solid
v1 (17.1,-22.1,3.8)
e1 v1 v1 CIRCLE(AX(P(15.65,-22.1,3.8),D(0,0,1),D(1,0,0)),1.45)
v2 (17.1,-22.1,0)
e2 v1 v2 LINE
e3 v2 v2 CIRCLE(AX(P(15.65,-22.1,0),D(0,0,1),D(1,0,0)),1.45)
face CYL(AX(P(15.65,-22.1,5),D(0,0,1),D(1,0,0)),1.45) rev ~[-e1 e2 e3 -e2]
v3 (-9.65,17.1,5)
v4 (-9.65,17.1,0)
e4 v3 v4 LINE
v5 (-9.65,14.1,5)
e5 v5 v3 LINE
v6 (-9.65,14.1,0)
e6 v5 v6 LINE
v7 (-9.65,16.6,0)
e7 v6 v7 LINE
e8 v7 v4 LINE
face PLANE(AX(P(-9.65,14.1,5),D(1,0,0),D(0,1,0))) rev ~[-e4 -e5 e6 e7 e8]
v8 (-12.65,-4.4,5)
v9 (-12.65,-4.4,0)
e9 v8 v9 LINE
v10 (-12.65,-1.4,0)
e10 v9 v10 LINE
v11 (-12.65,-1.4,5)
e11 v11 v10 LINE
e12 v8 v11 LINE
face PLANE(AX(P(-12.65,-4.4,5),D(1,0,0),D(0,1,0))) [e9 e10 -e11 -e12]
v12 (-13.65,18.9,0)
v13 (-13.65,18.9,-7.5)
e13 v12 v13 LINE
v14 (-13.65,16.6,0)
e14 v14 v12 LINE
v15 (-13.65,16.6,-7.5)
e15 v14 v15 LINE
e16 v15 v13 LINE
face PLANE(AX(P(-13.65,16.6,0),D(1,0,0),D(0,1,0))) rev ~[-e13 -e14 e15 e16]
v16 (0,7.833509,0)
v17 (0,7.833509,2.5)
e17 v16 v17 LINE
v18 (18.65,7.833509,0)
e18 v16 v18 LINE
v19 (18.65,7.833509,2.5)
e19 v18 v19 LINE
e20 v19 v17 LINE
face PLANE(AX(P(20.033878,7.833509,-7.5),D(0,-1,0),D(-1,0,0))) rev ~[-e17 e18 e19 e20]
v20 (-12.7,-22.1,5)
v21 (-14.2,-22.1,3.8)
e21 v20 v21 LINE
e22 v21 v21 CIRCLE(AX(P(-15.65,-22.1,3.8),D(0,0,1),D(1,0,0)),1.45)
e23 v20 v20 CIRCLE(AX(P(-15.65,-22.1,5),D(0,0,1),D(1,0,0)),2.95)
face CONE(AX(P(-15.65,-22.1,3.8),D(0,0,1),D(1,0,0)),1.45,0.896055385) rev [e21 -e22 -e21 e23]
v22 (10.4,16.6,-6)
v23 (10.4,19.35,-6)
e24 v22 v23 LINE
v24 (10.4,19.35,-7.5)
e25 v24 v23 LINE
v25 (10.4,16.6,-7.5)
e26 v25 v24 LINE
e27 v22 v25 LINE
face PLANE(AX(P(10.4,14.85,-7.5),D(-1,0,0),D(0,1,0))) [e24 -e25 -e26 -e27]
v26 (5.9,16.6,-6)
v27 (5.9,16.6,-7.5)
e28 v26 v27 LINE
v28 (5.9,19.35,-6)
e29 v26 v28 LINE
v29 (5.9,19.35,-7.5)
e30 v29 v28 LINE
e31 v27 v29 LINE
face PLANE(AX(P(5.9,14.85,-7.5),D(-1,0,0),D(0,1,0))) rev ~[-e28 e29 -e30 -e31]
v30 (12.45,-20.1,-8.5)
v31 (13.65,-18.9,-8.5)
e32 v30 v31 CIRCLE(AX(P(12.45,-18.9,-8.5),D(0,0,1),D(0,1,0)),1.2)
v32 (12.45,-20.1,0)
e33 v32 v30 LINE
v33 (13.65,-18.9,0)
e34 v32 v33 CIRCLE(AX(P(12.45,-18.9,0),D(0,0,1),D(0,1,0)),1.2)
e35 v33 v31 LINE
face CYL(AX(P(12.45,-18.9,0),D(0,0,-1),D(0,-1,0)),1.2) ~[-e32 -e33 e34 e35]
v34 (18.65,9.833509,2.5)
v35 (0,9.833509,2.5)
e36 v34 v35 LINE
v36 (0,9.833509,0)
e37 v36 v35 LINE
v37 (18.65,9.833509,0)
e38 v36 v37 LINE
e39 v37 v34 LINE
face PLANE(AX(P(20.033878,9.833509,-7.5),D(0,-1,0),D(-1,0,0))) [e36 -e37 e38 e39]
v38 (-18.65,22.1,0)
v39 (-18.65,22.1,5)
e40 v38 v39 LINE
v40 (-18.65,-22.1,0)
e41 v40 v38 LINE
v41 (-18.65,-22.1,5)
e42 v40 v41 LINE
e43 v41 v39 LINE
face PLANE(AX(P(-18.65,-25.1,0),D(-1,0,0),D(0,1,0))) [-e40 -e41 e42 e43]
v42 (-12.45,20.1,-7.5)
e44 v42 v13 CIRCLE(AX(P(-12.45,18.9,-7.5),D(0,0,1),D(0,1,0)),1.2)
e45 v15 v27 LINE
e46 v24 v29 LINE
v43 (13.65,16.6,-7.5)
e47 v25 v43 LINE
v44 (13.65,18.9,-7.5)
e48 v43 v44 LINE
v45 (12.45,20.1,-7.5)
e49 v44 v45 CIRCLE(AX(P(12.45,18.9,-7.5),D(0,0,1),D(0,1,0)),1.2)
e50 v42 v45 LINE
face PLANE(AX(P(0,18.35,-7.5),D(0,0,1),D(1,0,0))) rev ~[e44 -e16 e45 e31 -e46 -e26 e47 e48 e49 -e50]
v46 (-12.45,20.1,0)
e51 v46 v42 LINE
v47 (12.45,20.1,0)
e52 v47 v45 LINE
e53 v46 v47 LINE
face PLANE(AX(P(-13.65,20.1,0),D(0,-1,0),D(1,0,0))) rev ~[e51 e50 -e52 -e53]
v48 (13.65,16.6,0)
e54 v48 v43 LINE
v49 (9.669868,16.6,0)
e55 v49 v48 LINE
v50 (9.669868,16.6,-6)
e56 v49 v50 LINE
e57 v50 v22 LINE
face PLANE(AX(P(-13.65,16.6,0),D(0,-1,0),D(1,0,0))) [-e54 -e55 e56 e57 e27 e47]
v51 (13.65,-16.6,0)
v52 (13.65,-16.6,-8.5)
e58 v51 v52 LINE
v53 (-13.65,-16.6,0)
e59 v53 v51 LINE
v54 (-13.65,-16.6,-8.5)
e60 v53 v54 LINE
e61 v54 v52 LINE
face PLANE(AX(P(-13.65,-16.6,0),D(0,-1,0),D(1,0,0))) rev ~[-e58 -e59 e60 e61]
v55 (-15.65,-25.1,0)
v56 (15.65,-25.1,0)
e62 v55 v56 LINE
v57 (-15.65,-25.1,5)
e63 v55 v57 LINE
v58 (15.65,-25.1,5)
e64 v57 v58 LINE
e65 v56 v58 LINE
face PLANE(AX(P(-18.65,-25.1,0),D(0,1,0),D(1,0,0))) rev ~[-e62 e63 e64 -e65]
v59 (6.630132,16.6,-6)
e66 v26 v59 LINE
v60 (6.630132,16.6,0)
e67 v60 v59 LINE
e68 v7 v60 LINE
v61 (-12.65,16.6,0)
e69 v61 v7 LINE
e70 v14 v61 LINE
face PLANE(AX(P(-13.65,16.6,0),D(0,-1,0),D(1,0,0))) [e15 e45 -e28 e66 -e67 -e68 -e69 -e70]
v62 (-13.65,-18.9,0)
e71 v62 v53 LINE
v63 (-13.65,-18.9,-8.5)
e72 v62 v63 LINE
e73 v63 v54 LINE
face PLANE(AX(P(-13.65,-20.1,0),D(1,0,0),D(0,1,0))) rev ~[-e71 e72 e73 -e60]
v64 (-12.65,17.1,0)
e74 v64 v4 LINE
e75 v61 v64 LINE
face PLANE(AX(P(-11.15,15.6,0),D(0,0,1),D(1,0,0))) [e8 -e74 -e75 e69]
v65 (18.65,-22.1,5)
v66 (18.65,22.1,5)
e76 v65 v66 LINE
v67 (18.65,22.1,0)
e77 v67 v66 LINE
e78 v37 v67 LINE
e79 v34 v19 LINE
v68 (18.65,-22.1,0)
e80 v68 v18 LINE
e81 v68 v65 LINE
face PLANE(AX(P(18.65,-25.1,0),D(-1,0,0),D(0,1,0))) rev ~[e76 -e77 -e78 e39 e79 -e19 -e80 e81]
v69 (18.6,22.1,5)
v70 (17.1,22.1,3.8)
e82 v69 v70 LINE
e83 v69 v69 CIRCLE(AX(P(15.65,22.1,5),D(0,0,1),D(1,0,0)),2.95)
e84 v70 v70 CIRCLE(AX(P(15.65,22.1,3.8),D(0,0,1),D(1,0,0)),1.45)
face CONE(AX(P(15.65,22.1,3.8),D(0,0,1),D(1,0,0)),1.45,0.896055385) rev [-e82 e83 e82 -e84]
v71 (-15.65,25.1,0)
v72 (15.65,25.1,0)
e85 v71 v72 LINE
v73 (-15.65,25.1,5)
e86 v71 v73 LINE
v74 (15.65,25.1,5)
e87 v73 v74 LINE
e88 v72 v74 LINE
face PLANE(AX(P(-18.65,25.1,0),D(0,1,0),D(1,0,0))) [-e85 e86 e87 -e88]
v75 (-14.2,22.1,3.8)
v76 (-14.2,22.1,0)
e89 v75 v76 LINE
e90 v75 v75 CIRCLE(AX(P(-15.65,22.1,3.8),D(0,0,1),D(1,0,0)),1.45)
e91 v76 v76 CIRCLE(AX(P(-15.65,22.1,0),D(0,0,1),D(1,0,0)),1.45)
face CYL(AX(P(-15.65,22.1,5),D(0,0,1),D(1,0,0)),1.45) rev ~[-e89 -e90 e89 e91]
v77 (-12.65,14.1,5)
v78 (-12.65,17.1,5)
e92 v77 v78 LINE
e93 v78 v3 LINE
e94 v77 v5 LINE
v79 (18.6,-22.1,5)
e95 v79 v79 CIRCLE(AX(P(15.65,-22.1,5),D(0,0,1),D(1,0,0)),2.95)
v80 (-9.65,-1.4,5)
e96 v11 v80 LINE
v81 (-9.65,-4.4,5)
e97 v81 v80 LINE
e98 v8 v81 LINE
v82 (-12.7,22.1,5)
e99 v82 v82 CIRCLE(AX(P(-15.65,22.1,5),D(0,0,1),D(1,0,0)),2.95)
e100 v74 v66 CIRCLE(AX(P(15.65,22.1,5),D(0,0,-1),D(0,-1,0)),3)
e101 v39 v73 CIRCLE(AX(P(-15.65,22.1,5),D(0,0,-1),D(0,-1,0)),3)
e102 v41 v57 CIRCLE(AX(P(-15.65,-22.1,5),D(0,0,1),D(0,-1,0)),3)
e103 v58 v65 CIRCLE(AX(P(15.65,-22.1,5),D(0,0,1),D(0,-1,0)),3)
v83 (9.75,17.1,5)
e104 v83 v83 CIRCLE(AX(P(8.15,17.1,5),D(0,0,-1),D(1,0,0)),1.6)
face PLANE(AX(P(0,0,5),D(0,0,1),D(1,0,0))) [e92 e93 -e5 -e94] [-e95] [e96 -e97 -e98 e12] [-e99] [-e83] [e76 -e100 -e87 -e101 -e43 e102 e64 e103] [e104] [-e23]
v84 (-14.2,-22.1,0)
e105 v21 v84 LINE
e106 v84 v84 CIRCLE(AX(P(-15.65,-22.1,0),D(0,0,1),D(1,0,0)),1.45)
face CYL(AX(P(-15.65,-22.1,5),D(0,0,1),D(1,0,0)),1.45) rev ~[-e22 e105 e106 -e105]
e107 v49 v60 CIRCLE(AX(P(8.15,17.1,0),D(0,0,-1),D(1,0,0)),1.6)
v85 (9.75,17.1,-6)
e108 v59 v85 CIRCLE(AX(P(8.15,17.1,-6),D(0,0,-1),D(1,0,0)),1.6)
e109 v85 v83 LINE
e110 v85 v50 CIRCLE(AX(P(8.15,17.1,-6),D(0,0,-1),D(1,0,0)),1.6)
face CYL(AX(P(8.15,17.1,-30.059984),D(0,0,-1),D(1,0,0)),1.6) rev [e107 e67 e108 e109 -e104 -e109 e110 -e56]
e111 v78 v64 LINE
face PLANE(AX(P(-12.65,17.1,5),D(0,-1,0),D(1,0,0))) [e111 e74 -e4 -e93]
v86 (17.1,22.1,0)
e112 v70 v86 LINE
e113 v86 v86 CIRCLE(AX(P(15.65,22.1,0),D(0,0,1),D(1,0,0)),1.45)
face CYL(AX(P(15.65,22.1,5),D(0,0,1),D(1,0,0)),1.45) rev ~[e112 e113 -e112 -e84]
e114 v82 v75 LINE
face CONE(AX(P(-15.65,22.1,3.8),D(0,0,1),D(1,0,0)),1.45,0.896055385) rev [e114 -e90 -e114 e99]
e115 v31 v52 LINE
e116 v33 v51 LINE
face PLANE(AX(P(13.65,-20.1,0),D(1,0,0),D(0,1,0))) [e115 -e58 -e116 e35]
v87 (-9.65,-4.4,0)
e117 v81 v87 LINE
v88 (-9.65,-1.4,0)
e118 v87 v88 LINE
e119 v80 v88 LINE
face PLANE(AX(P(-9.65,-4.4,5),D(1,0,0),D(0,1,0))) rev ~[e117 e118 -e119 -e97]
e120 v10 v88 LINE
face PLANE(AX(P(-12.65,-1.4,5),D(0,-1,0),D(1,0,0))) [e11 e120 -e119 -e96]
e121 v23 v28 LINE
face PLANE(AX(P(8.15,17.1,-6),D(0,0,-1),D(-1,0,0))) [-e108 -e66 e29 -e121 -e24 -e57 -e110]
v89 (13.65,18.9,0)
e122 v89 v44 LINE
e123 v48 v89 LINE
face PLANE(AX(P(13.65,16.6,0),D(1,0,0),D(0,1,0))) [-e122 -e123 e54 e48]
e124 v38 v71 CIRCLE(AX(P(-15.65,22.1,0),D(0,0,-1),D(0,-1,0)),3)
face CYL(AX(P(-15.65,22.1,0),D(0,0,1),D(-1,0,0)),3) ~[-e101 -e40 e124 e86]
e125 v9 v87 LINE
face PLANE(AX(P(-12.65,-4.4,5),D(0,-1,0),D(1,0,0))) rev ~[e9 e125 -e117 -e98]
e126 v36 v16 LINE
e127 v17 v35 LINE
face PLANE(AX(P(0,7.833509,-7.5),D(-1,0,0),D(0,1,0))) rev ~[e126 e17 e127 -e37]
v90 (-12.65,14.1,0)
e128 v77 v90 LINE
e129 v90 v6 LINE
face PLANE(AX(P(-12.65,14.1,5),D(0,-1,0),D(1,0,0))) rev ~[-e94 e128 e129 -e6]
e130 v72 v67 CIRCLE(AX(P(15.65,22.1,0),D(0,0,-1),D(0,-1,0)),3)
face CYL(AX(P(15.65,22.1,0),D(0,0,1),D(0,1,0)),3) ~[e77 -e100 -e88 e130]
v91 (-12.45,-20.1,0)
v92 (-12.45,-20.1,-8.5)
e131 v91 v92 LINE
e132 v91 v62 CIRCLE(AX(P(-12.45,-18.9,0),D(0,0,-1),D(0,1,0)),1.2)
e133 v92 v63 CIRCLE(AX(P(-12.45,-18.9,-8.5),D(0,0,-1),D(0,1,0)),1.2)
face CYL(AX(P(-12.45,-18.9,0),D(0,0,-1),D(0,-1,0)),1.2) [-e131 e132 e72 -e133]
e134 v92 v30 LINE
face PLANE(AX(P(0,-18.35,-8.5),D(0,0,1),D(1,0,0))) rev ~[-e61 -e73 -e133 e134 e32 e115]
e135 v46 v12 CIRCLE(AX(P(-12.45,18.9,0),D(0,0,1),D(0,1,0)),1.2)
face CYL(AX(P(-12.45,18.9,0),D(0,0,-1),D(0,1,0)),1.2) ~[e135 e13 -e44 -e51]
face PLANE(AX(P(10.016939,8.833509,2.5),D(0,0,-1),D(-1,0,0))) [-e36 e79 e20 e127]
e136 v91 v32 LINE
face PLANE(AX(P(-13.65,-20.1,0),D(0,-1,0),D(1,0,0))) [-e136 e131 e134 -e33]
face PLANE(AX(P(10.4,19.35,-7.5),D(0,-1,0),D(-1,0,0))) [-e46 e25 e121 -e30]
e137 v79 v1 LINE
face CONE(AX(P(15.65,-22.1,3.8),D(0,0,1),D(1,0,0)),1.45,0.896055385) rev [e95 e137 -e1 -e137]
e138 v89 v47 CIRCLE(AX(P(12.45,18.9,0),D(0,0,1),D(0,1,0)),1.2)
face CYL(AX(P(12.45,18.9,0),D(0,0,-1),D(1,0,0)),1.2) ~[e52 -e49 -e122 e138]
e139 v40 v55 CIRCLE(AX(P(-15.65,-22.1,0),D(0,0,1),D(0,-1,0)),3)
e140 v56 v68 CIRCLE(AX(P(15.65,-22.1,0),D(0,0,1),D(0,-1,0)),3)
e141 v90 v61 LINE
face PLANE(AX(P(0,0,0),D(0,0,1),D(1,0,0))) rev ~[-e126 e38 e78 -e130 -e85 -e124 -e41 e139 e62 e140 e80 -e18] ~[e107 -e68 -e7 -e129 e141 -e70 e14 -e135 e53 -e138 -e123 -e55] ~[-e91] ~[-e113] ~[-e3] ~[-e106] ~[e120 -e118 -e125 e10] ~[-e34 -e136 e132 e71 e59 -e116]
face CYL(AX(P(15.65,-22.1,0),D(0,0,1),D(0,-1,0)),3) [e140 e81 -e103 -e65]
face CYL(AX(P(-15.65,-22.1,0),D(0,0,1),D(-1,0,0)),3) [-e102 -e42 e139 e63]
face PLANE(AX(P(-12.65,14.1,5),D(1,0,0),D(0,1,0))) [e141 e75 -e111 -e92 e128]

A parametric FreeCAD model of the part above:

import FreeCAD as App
import Part
import Sketcher

V = App.Vector


def edges_at(feature, points):
    """Names of the edges that pass closest to the given points."""
    edges = feature.Shape.Edges
    near = lambda p: min(range(len(edges)), key=lambda i: edges[i].distToShape(Part.Vertex(*p))[0])
    return sorted({f"Edge{near(p) + 1}" for p in points})


def add_polygon(sketch, points):
    """Adds a closed chain of lines whose ends are joined by coincident constraints."""
    first, n = sketch.GeometryCount, len(points)
    for a, b in zip(points, points[1:] + points[:1]):
        sketch.addGeometry(Part.LineSegment(App.Vector(*a, 0), App.Vector(*b, 0)), False)
    for i in range(n):
        sketch.addConstraint(Sketcher.Constraint("Coincident", first + i, 2, first + (i + 1) % n, 1))

doc = App.newDocument("Part")
body = doc.addObject("PartDesign::Body", "Body")

# Sketch on XY plane
sketch1 = body.newObject("Sketcher::SketchObject", "Sketch")
sketch1.AttachmentSupport = (doc.getObject("XY_Plane"), [""])
sketch1.MapMode = "FlatFace"
add_polygon(sketch1, [(-19, 25), (-19, -25), (19, -25), (19, 25)])  # lines 0-3
sketch1.addConstraint(Sketcher.Constraint("Vertical", 0))
sketch1.addConstraint(Sketcher.Constraint("Horizontal", 1))
sketch1.addConstraint(Sketcher.Constraint("Vertical", 2))
sketch1.addConstraint(Sketcher.Constraint("Horizontal", 3))
sketch1.addConstraint(Sketcher.Constraint("Symmetric", 0, 2, 2, 2, -1, 1))
sketch1.addConstraint(Sketcher.Constraint("DistanceX", 1, 1, 1, 2, 37.3))
sketch1.addConstraint(Sketcher.Constraint("DistanceY", 0, 2, 0, 1, 50.2))
pad1 = body.newObject("PartDesign::Pad", "Pad")
pad1.Profile = sketch1
pad1.Length = 5

# Sketch on XY plane
sketch2 = body.newObject("Sketcher::SketchObject", "Sketch001")
sketch2.AttachmentSupport = (doc.getObject("XY_Plane"), [""])
sketch2.MapMode = "FlatFace"
add_polygon(sketch2, [(-13.7, -16.6), (-13.7, -20.1), (13.7, -20.1), (13.7, -16.6)])  # lines 0-3
sketch2.addConstraint(Sketcher.Constraint("Vertical", 0))
sketch2.addConstraint(Sketcher.Constraint("Horizontal", 1))
sketch2.addConstraint(Sketcher.Constraint("Vertical", 2))
sketch2.addConstraint(Sketcher.Constraint("Horizontal", 3))
sketch2.addConstraint(Sketcher.Constraint("DistanceX", 1, 1, 1, 2, 27.3))
sketch2.addConstraint(Sketcher.Constraint("DistanceY", 0, 2, 0, 1, 3.5))
sketch2.addConstraint(Sketcher.Constraint("DistanceY", 0, 2, -1, 1, 20.1))
sketch2.addConstraint(Sketcher.Constraint("DistanceX", 0, 2, -1, 1, 13.65))
pad2 = body.newObject("PartDesign::Pad", "Pad001")
pad2.Profile = sketch2
pad2.Length = 8.5
pad2.Reversed = True

# Sketch on XY plane
sketch3 = body.newObject("Sketcher::SketchObject", "Sketch002")
sketch3.AttachmentSupport = (doc.getObject("XY_Plane"), [""])
sketch3.MapMode = "FlatFace"
add_polygon(sketch3, [(-13.7, 20.1), (-13.7, 16.6), (13.7, 16.6), (13.7, 20.1)])  # lines 0-3
sketch3.addConstraint(Sketcher.Constraint("Vertical", 0))
sketch3.addConstraint(Sketcher.Constraint("Horizontal", 1))
sketch3.addConstraint(Sketcher.Constraint("Vertical", 2))
sketch3.addConstraint(Sketcher.Constraint("Horizontal", 3))
sketch3.addConstraint(Sketcher.Constraint("DistanceX", 1, 1, 1, 2, 27.3))
sketch3.addConstraint(Sketcher.Constraint("DistanceY", 0, 2, 0, 1, 3.5))
sketch3.addConstraint(Sketcher.Constraint("DistanceY", -1, 1, 0, 2, 16.6))
sketch3.addConstraint(Sketcher.Constraint("DistanceX", 0, 2, -1, 1, 13.65))
pad3 = body.newObject("PartDesign::Pad", "Pad002")
pad3.Profile = sketch3
pad3.Length = 7.5
pad3.Reversed = True
doc.recompute()

fillet = body.newObject("PartDesign::Fillet", "Fillet")
fillet.Base = (pad3, edges_at(pad3, [
    (13.65, -20.1, -4.25),
    (-13.65, -20.1, -4.25),
    (-13.65, 20.1, -3.75),
    (13.65, 20.1, -3.75),
]))
fillet.Radius = 1.2
doc.recompute()

fillet2 = body.newObject("PartDesign::Fillet", "Fillet001")
fillet2.Base = (fillet, edges_at(fillet, [
    (18.65, -25.1, 2.5),
    (-18.65, -25.1, 2.5),
    (-18.65, 25.1, 2.5),
    (18.65, 25.1, 2.5),
]))
fillet2.Radius = 3

# Sketch on XY plane
sketch4 = body.newObject("Sketcher::SketchObject", "Sketch003")
sketch4.AttachmentSupport = (doc.getObject("XY_Plane"), [""])
sketch4.MapMode = "FlatFace"
sketch4.AttachmentOffset = App.Placement(V(0, 0, 5), App.Rotation())
sketch4.addGeometry(Part.Circle(V(8.2, 17.1, 0), V(0, 0, 1), 1.6), False)
sketch4.addConstraint(Sketcher.Constraint("Diameter", 0, 3.2))
sketch4.addConstraint(Sketcher.Constraint("DistanceY", -1, 1, 0, 3, 17.1))
sketch4.addConstraint(Sketcher.Constraint("DistanceX", -1, 1, 0, 3, 8.15))
pocket1 = body.newObject("PartDesign::Pocket", "Pocket")
pocket1.Profile = sketch4
pocket1.Type = "ThroughAll"
pocket1.Midplane = True

# Sketch on XY plane
sketch5 = body.newObject("Sketcher::SketchObject", "Sketch004")
sketch5.AttachmentSupport = (doc.getObject("XY_Plane"), [""])
sketch5.MapMode = "FlatFace"
sketch5.AttachmentOffset = App.Placement(V(0, 0, -7.5), App.Rotation())
add_polygon(sketch5, [(10.4, 19.4), (10.4, 14.8), (5.9, 14.8), (5.9, 19.4)])  # lines 0-3
sketch5.addConstraint(Sketcher.Constraint("Vertical", 0))
sketch5.addConstraint(Sketcher.Constraint("Horizontal", 1))
sketch5.addConstraint(Sketcher.Constraint("Vertical", 2))
sketch5.addConstraint(Sketcher.Constraint("Horizontal", 3))
sketch5.addConstraint(Sketcher.Constraint("Equal", 3, 0))
sketch5.addConstraint(Sketcher.Constraint("DistanceX", 1, 2, 1, 1, 4.5))
sketch5.addConstraint(Sketcher.Constraint("DistanceX", -1, 1, 0, 2, 10.4))
sketch5.addConstraint(Sketcher.Constraint("DistanceY", -1, 1, 0, 2, 14.85))
pocket2 = body.newObject("PartDesign::Pocket", "Pocket001")
pocket2.Profile = sketch5
pocket2.Length = 1.5
pocket2.Reversed = True

# Sketch on XY plane
sketch6 = body.newObject("Sketcher::SketchObject", "Sketch005")
sketch6.AttachmentSupport = (doc.getObject("XY_Plane"), [""])
sketch6.MapMode = "FlatFace"
sketch6.AttachmentOffset = App.Placement(V(0, 0, 5), App.Rotation())
sketch6.addGeometry(Part.Circle(V(-15.7, 22.1, 0), V(0, 0, 1), 1.4), False)
sketch6.addGeometry(Part.Circle(V(15.7, 22.1, 0), V(0, 0, 1), 1.4), False)
sketch6.addGeometry(Part.Circle(V(15.7, -22.1, 0), V(0, 0, 1), 1.4), False)
sketch6.addGeometry(Part.Circle(V(-15.7, -22.1, 0), V(0, 0, 1), 1.4), False)
sketch6.addConstraint(Sketcher.Constraint("Equal", 0, 1))
sketch6.addConstraint(Sketcher.Constraint("Equal", 1, 2))
sketch6.addConstraint(Sketcher.Constraint("Equal", 2, 3))
sketch6.addConstraint(Sketcher.Constraint("Symmetric", 0, 3, 2, 3, -1, 1))
sketch6.addConstraint(Sketcher.Constraint("Symmetric", 1, 3, 3, 3, -1, 1))
sketch6.addConstraint(Sketcher.Constraint("Symmetric", 0, 3, 1, 3, -2))
sketch6.addConstraint(Sketcher.Constraint("Diameter", 0, 2.9))
sketch6.addConstraint(Sketcher.Constraint("DistanceY", -1, 1, 0, 3, 22.1))
sketch6.addConstraint(Sketcher.Constraint("DistanceX", 0, 3, 1, 3, 31.3))
pocket3 = body.newObject("PartDesign::Pocket", "Pocket002")
pocket3.Profile = sketch6
pocket3.Type = "ThroughAll"
doc.recompute()

chamfer = body.newObject("PartDesign::Chamfer", "Chamfer")
chamfer.Base = (pocket3, edges_at(pocket3, [
    (-17.1, -22.1, 5),
    (14.2, -22.1, 5),
    (14.2, 22.1, 5),
    (-17.1, 22.1, 5),
]))
chamfer.ChamferType = "Two distances"
chamfer.Size = 1.5
chamfer.Size2 = 1.2
chamfer.FlipDirection = True

# Sketch on XY plane
sketch7 = body.newObject("Sketcher::SketchObject", "Sketch006")
sketch7.AttachmentSupport = (doc.getObject("XY_Plane"), [""])
sketch7.MapMode = "FlatFace"
sketch7.AttachmentOffset = App.Placement(V(0, 0, 5), App.Rotation())
add_polygon(sketch7, [(-12.7, 17.1), (-12.7, 14.1), (-9.7, 14.1), (-9.7, 17.1)])  # lines 0-3
add_polygon(sketch7, [(-12.7, -1.4), (-12.7, -4.4), (-9.7, -4.4), (-9.7, -1.4)])  # lines 4-7
sketch7.addConstraint(Sketcher.Constraint("Vertical", 0))
sketch7.addConstraint(Sketcher.Constraint("Horizontal", 1))
sketch7.addConstraint(Sketcher.Constraint("Vertical", 2))
sketch7.addConstraint(Sketcher.Constraint("Horizontal", 3))
sketch7.addConstraint(Sketcher.Constraint("Vertical", 4))
sketch7.addConstraint(Sketcher.Constraint("Horizontal", 5))
sketch7.addConstraint(Sketcher.Constraint("Vertical", 6))
sketch7.addConstraint(Sketcher.Constraint("Horizontal", 7))
sketch7.addConstraint(Sketcher.Constraint("Vertical", 3, 2, 4, 2))
sketch7.addConstraint(Sketcher.Constraint("Vertical", 2, 2, 5, 2))
sketch7.addConstraint(Sketcher.Constraint("Equal", 7, 0))
sketch7.addConstraint(Sketcher.Constraint("Equal", 2, 4))
sketch7.addConstraint(Sketcher.Constraint("DistanceX", 1, 1, 1, 2, 3.0))
sketch7.addConstraint(Sketcher.Constraint("DistanceY", -1, 1, 0, 2, 14.1))
sketch7.addConstraint(Sketcher.Constraint("DistanceY", 4, 2, -1, 1, 4.4))
sketch7.addConstraint(Sketcher.Constraint("DistanceX", 0, 2, -1, 1, 12.65))
pocket4 = body.newObject("PartDesign::Pocket", "Pocket003")
pocket4.Profile = sketch7
pocket4.Length = 5

# Sketch on XY plane
sketch8 = body.newObject("Sketcher::SketchObject", "Sketch007")
sketch8.AttachmentSupport = (doc.getObject("XY_Plane"), [""])
sketch8.MapMode = "FlatFace"
sketch8.AttachmentOffset = App.Placement(V(0, 0, -7.5), App.Rotation())
add_polygon(sketch8, [(20, 9.8), (20, 7.8), (0, 7.8), (0, 9.8)])  # lines 0-3
sketch8.addConstraint(Sketcher.Constraint("Vertical", 0))
sketch8.addConstraint(Sketcher.Constraint("Horizontal", 1))
sketch8.addConstraint(Sketcher.Constraint("Vertical", 2))
sketch8.addConstraint(Sketcher.Constraint("Horizontal", 3))
sketch8.addConstraint(Sketcher.Constraint("PointOnObject", 1, 2, -2))
sketch8.addConstraint(Sketcher.Constraint("DistanceY", 0, 2, 0, 1, 2.0))
sketch8.addConstraint(Sketcher.Constraint("DistanceX", 1, 2, 1, 1, 20.033878))
sketch8.addConstraint(Sketcher.Constraint("DistanceY", -1, 1, 0, 2, 7.833509))
pocket5 = body.newObject("PartDesign::Pocket", "Pocket004")
pocket5.Profile = sketch8
pocket5.Length = 10
pocket5.Reversed = True

doc.recompute()
